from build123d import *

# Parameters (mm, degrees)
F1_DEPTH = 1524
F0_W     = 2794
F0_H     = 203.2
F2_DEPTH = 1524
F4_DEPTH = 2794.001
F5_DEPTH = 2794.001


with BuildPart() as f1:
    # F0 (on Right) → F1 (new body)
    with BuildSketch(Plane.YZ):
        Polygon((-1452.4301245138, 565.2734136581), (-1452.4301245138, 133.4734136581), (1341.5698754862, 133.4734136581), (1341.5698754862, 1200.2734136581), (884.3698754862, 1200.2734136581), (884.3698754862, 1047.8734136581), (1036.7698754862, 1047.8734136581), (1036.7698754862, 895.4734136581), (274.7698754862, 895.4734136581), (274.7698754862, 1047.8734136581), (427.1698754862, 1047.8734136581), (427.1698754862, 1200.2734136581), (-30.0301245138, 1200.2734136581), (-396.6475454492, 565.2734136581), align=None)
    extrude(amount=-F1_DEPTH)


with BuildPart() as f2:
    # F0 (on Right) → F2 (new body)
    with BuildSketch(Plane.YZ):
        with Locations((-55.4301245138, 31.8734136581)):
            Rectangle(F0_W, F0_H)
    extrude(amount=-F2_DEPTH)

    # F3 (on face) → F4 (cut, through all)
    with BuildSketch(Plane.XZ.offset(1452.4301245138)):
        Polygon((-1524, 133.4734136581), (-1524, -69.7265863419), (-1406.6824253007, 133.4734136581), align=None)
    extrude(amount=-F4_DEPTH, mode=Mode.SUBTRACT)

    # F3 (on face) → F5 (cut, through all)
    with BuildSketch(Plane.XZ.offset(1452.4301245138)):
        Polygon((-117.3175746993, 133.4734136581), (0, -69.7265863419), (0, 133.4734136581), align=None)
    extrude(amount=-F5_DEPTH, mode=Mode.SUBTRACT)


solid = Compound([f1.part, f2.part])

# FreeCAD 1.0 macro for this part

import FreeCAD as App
import Part
import Sketcher
from FreeCAD import Vector
Q = App.Units.Quantity


def add_polygon(sketch, points):
    """Adds a closed chain of lines whose ends are joined by coincident constraints."""
    first, n = sketch.GeometryCount, len(points)
    for a, b in zip(points, points[1:] + points[:1]):
        sketch.addGeometry(Part.LineSegment(App.Vector(*a, 0), App.Vector(*b, 0)), False)
    for i in range(n):
        sketch.addConstraint(Sketcher.Constraint("Coincident", first + i, 2, first + (i + 1) % n, 1))

doc = App.newDocument("Part")
params = doc.addObject("Spreadsheet::Sheet", "Params")
for row, (alias, value) in enumerate([
    ("sketch1_width", "110 in"),
    ("sketch1_width2", "18 in"),
    ("sketch1_width3", "6 in"),
    ("sketch1_width4", "30 in"),
    ("sketch1_height", "17 in"),
    ("pad1_length", "60 in"),
    ("sketch2_width", "110 in"),
    ("sketch2_height", "8 in"),
    ("pad2_length", "60 in"),
    ("sketch3_height", "8 in"),
    ("sketch4_height", "8 in"),
], start=1):
    params.set(f"A{row}", alias)
    params.set(f"B{row}", "=" + value)
    params.setAlias(f"B{row}", alias)

body = doc.addObject("PartDesign::Body", "Body")

sketch1 = body.newObject("Sketcher::SketchObject", "Sketch")
sketch1.AttachmentSupport = (doc.getObject("YZ_Plane"), [""])
sketch1.MapMode = "FlatFace"
add_polygon(sketch1, [(-1452, 565), (-1452, 133), (1342, 133), (1342, 1200), (884, 1200), (884, 1048), (1037, 1048), (1037, 895), (275, 895), (275, 1048), (427, 1048), (427, 1200), (-30, 1200), (-397, 565)])
sketch1.addConstraint([
    Sketcher.Constraint("Vertical", 0),
    Sketcher.Constraint("Horizontal", 1),
    Sketcher.Constraint("Vertical", 2),
    Sketcher.Constraint("Horizontal", 3),
    Sketcher.Constraint("Vertical", 4),
    Sketcher.Constraint("Horizontal", 5),
    Sketcher.Constraint("Vertical", 6),
    Sketcher.Constraint("Horizontal", 7),
    Sketcher.Constraint("Vertical", 8),
    Sketcher.Constraint("Horizontal", 9),
    Sketcher.Constraint("Vertical", 10),
    Sketcher.Constraint("Horizontal", 11),
    Sketcher.Constraint("Horizontal", 13),
    Sketcher.Constraint("Horizontal", 5, 2, 8, 2),
    Sketcher.Constraint("Horizontal", 3, 2, 10, 2),
    Sketcher.Constraint("Equal", 5, 9),
    Sketcher.Constraint("Equal", 3, 11),
    Sketcher.Constraint("Equal", 9, 4),
    Sketcher.Constraint("Equal", 4, 6),
    Sketcher.Constraint("DistanceX", 1, 1, 1, 2, Q("110 in")),
    Sketcher.Constraint("DistanceX", 3, 2, 3, 1, Q("18 in")),
    Sketcher.Constraint("DistanceX", 5, 1, 5, 2, Q("6 in")),
    Sketcher.Constraint("DistanceX", 7, 2, 7, 1, Q("30 in")),
    Sketcher.Constraint("DistanceY", 0, 2, 0, 1, Q("17 in")),
    Sketcher.Constraint("DistanceY", 2, 1, 2, 2, Q("42 in")),
    Sketcher.Constraint("Angle", 12, Q("-120 deg")),
    Sketcher.Constraint("DistanceX", 0, 2, -1, 1, 1452.430125),
    Sketcher.Constraint("DistanceY", -1, 1, 0, 2, 133.473414),
])
sketch1.setExpression("Constraints[33]", "Params.sketch1_width")
sketch1.setExpression("Constraints[34]", "Params.sketch1_width2")
sketch1.setExpression("Constraints[35]", "Params.sketch1_width3")
sketch1.setExpression("Constraints[36]", "Params.sketch1_width4")
sketch1.setExpression("Constraints[37]", "Params.sketch1_height")
pad1 = body.newObject("PartDesign::Pad", "Pad")
pad1.Profile = sketch1
pad1.setExpression("Length", "Params.pad1_length")
pad1.Reversed = True
body2 = doc.addObject("PartDesign::Body", "Body001")

sketch2 = body2.newObject("Sketcher::SketchObject", "Sketch001")
sketch2.AttachmentSupport = (doc.getObject("YZ_Plane001"), [""])
sketch2.MapMode = "FlatFace"
add_polygon(sketch2, [(-1452, 133), (-1452, -70), (1342, -70), (1342, 133)])
sketch2.addConstraint([
    Sketcher.Constraint("Vertical", 0),
    Sketcher.Constraint("Horizontal", 1),
    Sketcher.Constraint("Vertical", 2),
    Sketcher.Constraint("Horizontal", 3),
    Sketcher.Constraint("DistanceX", 1, 1, 1, 2, Q("110 in")),
    Sketcher.Constraint("DistanceY", 0, 2, 0, 1, Q("8 in")),
    Sketcher.Constraint("DistanceX", 0, 2, -1, 1, 1452.430125),
    Sketcher.Constraint("DistanceY", 0, 2, -1, 1, 69.726586),
])
sketch2.setExpression("Constraints[8]", "Params.sketch2_width")
sketch2.setExpression("Constraints[9]", "Params.sketch2_height")
pad2 = body2.newObject("PartDesign::Pad", "Pad001")
pad2.Profile = sketch2
pad2.setExpression("Length", "Params.pad2_length")
pad2.Reversed = True

sketch3 = body2.newObject("Sketcher::SketchObject", "Sketch002")
sketch3.AttachmentSupport = (doc.getObject("XZ_Plane001"), [""])
sketch3.MapMode = "FlatFace"
sketch3.AttachmentOffset = App.Placement(Vector(0, 0, 1452.430125), App.Rotation())
add_polygon(sketch3, [(-1524, 133), (-1524, -70), (-1407, 133)])
sketch3.addConstraint([
    Sketcher.Constraint("Vertical", 0),
    Sketcher.Constraint("Horizontal", 2),
    Sketcher.Constraint("DistanceY", 0, 2, 0, 1, Q("8 in")),
    Sketcher.Constraint("DistanceX", 0, 2, -1, 1, Q("60 in")),
    Sketcher.Constraint("Angle", 1, Q("60 deg")),
    Sketcher.Constraint("DistanceY", 0, 2, -1, 1, 69.726586),
])
sketch3.setExpression("Constraints[5]", "Params.sketch3_height")
pocket1 = body2.newObject("PartDesign::Pocket", "Pocket")
pocket1.Profile = sketch3
pocket1.Type = "ThroughAll"

sketch4 = body2.newObject("Sketcher::SketchObject", "Sketch003")
sketch4.AttachmentSupport = (doc.getObject("XZ_Plane001"), [""])
sketch4.MapMode = "FlatFace"
sketch4.AttachmentOffset = App.Placement(Vector(0, 0, 1452.430125), App.Rotation())
add_polygon(sketch4, [(-117, 133), (0, -70), (0, 133)])
sketch4.addConstraint([
    Sketcher.Constraint("Vertical", 1),
    Sketcher.Constraint("Horizontal", 2),
    Sketcher.Constraint("PointOnObject", 0, 2, -2),
    Sketcher.Constraint("DistanceY", 1, 1, 1, 2, Q("8 in")),
    Sketcher.Constraint("Angle", 0, Q("-60 deg")),
    Sketcher.Constraint("DistanceY", 0, 2, -1, 1, 69.726586),
])
sketch4.setExpression("Constraints[6]", "Params.sketch4_height")
pocket2 = body2.newObject("PartDesign::Pocket", "Pocket001")
pocket2.Profile = sketch4
pocket2.Type = "ThroughAll"

doc.recompute()
